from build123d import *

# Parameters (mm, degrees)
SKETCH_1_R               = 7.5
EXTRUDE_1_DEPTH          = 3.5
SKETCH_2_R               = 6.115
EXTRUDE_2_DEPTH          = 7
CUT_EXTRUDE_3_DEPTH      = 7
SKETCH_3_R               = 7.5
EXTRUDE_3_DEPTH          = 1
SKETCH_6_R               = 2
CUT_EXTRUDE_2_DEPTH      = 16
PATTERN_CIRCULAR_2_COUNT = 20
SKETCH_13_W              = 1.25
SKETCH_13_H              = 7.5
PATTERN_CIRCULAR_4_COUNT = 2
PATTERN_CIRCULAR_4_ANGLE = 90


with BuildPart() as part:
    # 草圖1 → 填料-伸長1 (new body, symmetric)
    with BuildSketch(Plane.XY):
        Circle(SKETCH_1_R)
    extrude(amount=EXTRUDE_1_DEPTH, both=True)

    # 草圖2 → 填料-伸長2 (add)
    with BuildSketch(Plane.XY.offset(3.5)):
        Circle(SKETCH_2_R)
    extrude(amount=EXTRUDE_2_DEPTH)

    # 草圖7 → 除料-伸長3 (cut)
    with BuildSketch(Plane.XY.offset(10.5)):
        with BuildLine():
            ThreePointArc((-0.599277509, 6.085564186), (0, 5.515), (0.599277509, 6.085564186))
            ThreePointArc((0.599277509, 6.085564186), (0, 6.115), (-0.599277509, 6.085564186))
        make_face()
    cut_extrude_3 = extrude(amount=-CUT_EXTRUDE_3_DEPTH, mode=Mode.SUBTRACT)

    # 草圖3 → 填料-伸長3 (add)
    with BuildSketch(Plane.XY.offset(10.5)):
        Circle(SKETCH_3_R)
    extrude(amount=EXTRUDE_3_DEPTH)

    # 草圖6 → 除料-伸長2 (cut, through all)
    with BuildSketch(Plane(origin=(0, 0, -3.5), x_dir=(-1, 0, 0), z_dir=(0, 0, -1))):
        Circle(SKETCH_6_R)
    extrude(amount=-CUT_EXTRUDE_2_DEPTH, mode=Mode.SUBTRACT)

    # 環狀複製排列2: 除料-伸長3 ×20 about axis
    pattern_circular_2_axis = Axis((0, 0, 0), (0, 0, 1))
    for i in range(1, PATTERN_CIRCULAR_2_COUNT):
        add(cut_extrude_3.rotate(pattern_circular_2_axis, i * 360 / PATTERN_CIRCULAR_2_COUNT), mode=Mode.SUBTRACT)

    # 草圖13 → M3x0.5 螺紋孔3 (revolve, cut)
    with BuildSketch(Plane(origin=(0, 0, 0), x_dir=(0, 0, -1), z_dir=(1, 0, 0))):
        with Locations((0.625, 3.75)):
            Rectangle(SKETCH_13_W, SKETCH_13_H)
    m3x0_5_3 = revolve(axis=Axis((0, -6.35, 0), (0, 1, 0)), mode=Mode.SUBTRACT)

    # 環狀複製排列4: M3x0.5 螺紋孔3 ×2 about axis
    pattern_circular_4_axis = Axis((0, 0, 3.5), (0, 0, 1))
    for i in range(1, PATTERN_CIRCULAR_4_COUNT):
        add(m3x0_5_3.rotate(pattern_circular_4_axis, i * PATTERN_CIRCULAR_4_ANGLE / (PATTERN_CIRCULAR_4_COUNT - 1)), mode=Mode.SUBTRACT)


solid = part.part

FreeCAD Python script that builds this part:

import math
import FreeCAD as App
import Part
import Sketcher


def add_polygon(sketch, points):
    """Adds a closed chain of lines whose ends are joined by coincident constraints."""
    first, n = sketch.GeometryCount, len(points)
    for a, b in zip(points, points[1:] + points[:1]):
        sketch.addGeometry(Part.LineSegment(App.Vector(*a, 0), App.Vector(*b, 0)), False)
    for i in range(n):
        sketch.addConstraint(Sketcher.Constraint("Coincident", first + i, 2, first + (i + 1) % n, 1))

doc = App.newDocument("Part")
body = doc.addObject("PartDesign::Body", "Body")

sketch1 = body.newObject("Sketcher::SketchObject", "Sketch")
sketch1.AttachmentSupport = (doc.getObject("XY_Plane"), [""])
sketch1.MapMode = "FlatFace"
sketch1.addGeometry(Part.Circle(App.Vector(0, 0, 0), App.Vector(0, 0, 1), 7.5), False)
sketch1.addConstraint(Sketcher.Constraint("Coincident", 0, 3, -1, 1))
sketch1.addConstraint(Sketcher.Constraint("Diameter", 0, 15.0))
pad1 = body.newObject("PartDesign::Pad", "Pad")
pad1.Profile = sketch1
pad1.Length = 7
pad1.Midplane = True

sketch2 = body.newObject("Sketcher::SketchObject", "Sketch001")
sketch2.AttachmentSupport = (doc.getObject("XY_Plane"), [""])
sketch2.MapMode = "FlatFace"
sketch2.AttachmentOffset = App.Placement(App.Vector(0, 0, 3.5), App.Rotation())
sketch2.addGeometry(Part.Circle(App.Vector(0, 0, 0), App.Vector(0, 0, 1), 6.115), False)
sketch2.addConstraint(Sketcher.Constraint("Coincident", 0, 3, -1, 1))
sketch2.addConstraint(Sketcher.Constraint("Diameter", 0, 12.23))
pad2 = body.newObject("PartDesign::Pad", "Pad001")
pad2.Profile = sketch2
pad2.Length = 7

sketch3 = body.newObject("Sketcher::SketchObject", "Sketch002")
sketch3.AttachmentSupport = (doc.getObject("XY_Plane"), [""])
sketch3.MapMode = "FlatFace"
sketch3.AttachmentOffset = App.Placement(App.Vector(0, 0, 10.5), App.Rotation())
sketch3.addGeometry(Part.ArcOfCircle(Part.Circle(App.Vector(0, 6.115, 0), App.Vector(0, 0, 1), 0.6), math.radians(-177.187958), math.radians(-2.812042)), False)
sketch3.addGeometry(Part.ArcOfCircle(Part.Circle(App.Vector(0, 0, 0), App.Vector(0, 0, 1), 6.115), math.radians(84.375916), math.radians(95.624084)), False)
sketch3.addConstraint(Sketcher.Constraint("Coincident", 0, 1, 1, 2))
sketch3.addConstraint(Sketcher.Constraint("Coincident", 1, 1, 0, 2))
sketch3.addConstraint(Sketcher.Constraint("Coincident", 1, 3, -1, 1))
sketch3.addConstraint(Sketcher.Constraint("PointOnObject", 0, 3, -2))
sketch3.addConstraint(Sketcher.Constraint("Radius", 0, 0.6))
sketch3.addConstraint(Sketcher.Constraint("Radius", 1, 6.115))
sketch3.addConstraint(Sketcher.Constraint("DistanceY", -1, 1, 0, 3, 6.115))
pocket1 = body.newObject("PartDesign::Pocket", "Pocket")
pocket1.Profile = sketch3
pocket1.Length = 7

sketch4 = body.newObject("Sketcher::SketchObject", "Sketch003")
sketch4.AttachmentSupport = (doc.getObject("XY_Plane"), [""])
sketch4.MapMode = "FlatFace"
sketch4.AttachmentOffset = App.Placement(App.Vector(0, 0, 10.5), App.Rotation())
sketch4.addGeometry(Part.Circle(App.Vector(0, 0, 0), App.Vector(0, 0, 1), 7.5), False)
sketch4.addConstraint(Sketcher.Constraint("Coincident", 0, 3, -1, 1))
sketch4.addConstraint(Sketcher.Constraint("Diameter", 0, 15.0))
pad3 = body.newObject("PartDesign::Pad", "Pad002")
pad3.Profile = sketch4
pad3.Length = 1

sketch5 = body.newObject("Sketcher::SketchObject", "Sketch004")
sketch5.AttachmentSupport = (doc.getObject("XY_Plane"), [""])
sketch5.MapMode = "FlatFace"
sketch5.AttachmentOffset = App.Placement(App.Vector(0, 0, -3.5), App.Rotation())
sketch5.addGeometry(Part.Circle(App.Vector(0, 0, 0), App.Vector(0, 0, 1), 2), False)
sketch5.addConstraint(Sketcher.Constraint("Coincident", 0, 3, -1, 1))
sketch5.addConstraint(Sketcher.Constraint("Diameter", 0, 4.0))
pocket2 = body.newObject("PartDesign::Pocket", "Pocket001")
pocket2.Profile = sketch5
pocket2.Type = "ThroughAll"
pocket2.Reversed = True
doc.recompute()

polarpattern = body.newObject("PartDesign::PolarPattern", "PolarPattern")
polarpattern.Originals = [pocket1]
polarpattern.Axis = (doc.getObject("Z_Axis"), [""])
polarpattern.Angle = 360
polarpattern.Occurrences = 20
body.Tip = polarpattern

sketch6 = body.newObject("Sketcher::SketchObject", "Sketch005")
sketch6.AttachmentSupport = (doc.getObject("YZ_Plane"), [""])
sketch6.MapMode = "FlatFace"
add_polygon(sketch6, [(7.5, 0), (0, 0), (0, -1.25), (7.5, -1.25)])
sketch6.addConstraint(Sketcher.Constraint("Horizontal", 0))
sketch6.addConstraint(Sketcher.Constraint("Vertical", 1))
sketch6.addConstraint(Sketcher.Constraint("Horizontal", 2))
sketch6.addConstraint(Sketcher.Constraint("Vertical", 3))
sketch6.addConstraint(Sketcher.Constraint("Coincident", 0, 2, -1, 1))
sketch6.addConstraint(Sketcher.Constraint("DistanceX", 0, 2, 0, 1, 7.5))
sketch6.addConstraint(Sketcher.Constraint("DistanceY", 1, 2, 1, 1, 1.25))
groove = body.newObject("PartDesign::Groove", "Groove")
groove.Profile = sketch6
groove.ReferenceAxis = (sketch6, ["H_Axis"])
groove.Angle = 360
doc.recompute()

polarpattern2 = body.newObject("PartDesign::PolarPattern", "PolarPattern001")
polarpattern2.Originals = [groove]
polarpattern2.Axis = (doc.getObject("Z_Axis"), [""])
polarpattern2.Angle = 90
polarpattern2.Occurrences = 2
body.Tip = polarpattern2

doc.recompute()
